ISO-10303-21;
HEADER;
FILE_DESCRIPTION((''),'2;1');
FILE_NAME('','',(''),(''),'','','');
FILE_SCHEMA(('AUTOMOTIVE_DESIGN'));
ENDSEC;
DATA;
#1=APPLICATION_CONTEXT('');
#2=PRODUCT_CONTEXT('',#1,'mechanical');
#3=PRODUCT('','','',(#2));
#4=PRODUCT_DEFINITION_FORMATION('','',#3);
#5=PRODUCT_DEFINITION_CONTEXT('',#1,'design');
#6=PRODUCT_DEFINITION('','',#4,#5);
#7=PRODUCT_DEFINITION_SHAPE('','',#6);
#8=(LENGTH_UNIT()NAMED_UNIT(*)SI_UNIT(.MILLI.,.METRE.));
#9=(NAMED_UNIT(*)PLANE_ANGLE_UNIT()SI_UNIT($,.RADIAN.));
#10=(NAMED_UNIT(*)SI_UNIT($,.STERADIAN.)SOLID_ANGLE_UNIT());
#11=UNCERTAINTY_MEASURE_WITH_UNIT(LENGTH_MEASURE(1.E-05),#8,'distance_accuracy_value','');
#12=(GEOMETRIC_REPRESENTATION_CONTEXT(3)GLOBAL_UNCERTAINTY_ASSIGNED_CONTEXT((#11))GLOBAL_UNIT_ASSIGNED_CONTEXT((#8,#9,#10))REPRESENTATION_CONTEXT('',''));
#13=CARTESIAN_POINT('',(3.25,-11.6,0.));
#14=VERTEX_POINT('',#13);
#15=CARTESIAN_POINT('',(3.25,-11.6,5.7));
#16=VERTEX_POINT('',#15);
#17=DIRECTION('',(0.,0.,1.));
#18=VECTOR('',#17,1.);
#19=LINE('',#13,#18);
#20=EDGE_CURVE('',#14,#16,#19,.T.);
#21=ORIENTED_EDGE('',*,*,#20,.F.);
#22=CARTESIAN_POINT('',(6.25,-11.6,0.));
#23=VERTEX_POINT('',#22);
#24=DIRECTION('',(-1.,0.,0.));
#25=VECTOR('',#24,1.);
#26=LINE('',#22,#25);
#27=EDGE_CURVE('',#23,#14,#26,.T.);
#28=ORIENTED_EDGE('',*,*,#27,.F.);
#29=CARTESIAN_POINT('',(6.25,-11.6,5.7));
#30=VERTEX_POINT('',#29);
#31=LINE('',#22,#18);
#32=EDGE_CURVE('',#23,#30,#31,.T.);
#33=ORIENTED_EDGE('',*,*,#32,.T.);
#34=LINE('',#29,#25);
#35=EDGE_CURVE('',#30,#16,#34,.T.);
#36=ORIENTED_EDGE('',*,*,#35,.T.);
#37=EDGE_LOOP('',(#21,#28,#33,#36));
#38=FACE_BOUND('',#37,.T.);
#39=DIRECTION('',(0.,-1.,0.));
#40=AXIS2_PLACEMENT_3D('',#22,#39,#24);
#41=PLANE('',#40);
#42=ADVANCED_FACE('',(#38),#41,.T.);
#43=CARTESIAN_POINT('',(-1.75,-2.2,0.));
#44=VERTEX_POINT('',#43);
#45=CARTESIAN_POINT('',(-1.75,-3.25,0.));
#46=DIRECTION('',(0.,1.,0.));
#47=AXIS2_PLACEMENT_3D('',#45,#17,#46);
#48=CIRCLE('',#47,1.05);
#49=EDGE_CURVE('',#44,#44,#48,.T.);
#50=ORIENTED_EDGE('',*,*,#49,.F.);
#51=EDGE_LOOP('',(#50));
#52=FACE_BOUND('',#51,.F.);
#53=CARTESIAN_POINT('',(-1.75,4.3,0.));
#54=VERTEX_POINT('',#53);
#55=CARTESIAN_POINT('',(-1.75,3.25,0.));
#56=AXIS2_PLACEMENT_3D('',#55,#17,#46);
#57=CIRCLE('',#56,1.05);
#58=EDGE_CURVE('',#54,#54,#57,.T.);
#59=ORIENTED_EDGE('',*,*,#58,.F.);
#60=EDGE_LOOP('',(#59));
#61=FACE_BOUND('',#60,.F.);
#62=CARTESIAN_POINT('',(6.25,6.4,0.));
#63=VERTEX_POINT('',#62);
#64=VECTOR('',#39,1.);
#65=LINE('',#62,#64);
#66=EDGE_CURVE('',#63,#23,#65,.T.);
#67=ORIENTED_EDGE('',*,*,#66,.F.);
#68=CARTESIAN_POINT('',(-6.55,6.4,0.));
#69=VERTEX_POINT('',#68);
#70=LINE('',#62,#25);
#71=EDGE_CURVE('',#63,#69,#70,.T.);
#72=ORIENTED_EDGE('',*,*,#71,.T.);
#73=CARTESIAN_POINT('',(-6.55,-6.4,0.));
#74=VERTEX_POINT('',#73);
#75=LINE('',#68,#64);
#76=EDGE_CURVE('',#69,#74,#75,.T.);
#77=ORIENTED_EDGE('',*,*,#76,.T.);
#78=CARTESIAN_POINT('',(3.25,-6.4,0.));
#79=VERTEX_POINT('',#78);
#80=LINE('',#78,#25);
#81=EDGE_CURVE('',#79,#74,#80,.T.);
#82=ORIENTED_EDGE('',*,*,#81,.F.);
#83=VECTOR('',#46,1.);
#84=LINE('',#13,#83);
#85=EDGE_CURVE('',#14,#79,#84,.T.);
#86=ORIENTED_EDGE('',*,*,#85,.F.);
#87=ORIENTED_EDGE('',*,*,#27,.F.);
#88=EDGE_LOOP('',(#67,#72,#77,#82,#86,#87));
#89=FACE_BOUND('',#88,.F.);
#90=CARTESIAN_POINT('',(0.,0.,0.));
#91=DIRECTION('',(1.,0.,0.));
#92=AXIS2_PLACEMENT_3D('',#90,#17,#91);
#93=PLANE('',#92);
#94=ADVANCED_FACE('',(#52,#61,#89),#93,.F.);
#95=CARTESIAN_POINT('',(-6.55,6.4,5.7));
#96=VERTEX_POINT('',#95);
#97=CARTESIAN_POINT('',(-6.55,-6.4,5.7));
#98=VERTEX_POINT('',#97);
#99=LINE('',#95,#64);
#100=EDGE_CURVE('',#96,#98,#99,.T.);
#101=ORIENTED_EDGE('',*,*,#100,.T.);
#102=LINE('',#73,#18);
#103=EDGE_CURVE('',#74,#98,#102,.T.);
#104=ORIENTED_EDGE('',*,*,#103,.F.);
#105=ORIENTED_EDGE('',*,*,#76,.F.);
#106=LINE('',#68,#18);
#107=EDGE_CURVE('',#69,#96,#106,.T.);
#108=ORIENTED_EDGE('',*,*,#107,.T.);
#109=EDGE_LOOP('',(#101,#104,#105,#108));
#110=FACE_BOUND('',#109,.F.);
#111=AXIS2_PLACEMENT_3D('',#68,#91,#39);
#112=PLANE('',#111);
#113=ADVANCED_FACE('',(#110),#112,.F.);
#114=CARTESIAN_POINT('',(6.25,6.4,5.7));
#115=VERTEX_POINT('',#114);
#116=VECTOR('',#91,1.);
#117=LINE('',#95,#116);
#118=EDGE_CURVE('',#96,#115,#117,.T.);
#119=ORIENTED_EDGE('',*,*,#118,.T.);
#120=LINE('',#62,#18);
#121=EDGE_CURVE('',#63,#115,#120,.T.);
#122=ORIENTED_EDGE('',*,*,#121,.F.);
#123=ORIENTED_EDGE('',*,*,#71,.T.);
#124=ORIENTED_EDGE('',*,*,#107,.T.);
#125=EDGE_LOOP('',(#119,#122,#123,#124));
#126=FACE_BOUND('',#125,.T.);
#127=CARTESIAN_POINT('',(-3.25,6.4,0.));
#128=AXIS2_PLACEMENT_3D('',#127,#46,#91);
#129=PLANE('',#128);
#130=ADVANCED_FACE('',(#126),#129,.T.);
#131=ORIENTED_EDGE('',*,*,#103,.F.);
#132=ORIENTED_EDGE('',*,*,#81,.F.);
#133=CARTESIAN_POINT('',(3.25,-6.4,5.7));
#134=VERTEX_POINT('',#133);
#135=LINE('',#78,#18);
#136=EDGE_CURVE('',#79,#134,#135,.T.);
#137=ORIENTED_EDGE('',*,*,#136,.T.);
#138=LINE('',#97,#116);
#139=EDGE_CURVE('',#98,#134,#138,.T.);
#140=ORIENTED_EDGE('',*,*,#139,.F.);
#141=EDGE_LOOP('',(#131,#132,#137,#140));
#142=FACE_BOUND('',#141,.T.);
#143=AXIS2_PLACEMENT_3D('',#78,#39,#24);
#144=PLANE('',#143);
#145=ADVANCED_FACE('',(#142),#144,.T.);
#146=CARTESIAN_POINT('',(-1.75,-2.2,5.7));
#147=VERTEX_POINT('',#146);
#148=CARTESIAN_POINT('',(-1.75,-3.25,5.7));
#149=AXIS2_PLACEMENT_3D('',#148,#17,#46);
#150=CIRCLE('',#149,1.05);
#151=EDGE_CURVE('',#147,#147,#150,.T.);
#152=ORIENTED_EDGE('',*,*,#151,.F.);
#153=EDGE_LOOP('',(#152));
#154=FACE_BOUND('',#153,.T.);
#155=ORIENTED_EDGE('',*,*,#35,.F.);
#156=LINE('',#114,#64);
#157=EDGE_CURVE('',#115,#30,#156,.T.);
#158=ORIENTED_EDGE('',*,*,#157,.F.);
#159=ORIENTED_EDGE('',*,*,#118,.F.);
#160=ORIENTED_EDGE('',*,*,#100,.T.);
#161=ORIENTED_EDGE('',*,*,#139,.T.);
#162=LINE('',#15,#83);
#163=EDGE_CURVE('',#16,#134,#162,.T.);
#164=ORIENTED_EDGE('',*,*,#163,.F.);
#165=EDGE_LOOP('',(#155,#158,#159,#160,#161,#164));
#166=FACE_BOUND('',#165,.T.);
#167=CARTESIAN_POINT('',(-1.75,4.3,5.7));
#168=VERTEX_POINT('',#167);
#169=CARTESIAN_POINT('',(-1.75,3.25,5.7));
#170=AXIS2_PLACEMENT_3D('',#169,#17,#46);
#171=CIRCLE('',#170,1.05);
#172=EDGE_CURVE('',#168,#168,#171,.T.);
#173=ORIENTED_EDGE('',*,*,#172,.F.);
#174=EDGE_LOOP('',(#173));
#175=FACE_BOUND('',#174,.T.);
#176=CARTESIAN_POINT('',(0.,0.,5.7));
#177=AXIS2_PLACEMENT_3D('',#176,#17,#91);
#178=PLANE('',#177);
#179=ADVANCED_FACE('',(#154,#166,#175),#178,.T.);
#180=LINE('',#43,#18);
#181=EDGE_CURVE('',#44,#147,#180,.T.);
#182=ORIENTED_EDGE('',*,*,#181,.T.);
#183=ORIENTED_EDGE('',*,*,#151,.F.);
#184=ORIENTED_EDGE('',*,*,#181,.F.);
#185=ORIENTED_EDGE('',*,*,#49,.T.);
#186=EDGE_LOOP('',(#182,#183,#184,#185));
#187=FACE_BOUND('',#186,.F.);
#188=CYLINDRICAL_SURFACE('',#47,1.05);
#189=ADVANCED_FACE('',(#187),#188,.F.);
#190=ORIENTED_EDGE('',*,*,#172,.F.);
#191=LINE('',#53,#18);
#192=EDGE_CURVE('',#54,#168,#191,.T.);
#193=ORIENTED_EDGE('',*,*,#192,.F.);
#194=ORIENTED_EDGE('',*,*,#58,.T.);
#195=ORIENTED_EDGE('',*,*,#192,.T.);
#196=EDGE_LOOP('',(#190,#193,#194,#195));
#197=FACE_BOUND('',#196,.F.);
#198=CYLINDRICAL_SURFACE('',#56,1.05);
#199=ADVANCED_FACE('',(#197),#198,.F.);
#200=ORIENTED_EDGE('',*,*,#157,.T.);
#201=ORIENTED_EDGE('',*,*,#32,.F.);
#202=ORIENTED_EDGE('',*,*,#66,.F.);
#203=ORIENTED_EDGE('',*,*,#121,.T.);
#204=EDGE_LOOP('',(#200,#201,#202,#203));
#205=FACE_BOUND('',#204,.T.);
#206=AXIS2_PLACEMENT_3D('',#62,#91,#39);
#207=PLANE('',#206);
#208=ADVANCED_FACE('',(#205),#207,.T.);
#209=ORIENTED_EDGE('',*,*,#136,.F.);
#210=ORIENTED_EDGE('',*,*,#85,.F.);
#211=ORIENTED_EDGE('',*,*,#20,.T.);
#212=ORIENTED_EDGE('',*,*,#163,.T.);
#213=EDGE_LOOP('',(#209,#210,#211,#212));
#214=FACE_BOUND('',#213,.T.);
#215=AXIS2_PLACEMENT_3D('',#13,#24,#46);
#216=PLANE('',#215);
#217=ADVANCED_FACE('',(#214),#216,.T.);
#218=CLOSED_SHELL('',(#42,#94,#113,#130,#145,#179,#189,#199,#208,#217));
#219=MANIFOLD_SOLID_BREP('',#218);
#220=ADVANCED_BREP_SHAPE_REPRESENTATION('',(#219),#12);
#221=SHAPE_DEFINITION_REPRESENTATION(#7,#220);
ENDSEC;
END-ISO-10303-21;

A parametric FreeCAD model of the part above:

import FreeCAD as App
import Part
import Sketcher

doc = App.newDocument("Part")
body = doc.addObject("PartDesign::Body", "Body")

# Sketch on XY plane
sketch1 = body.newObject("Sketcher::SketchObject", "Sketch")
sketch1.AttachmentSupport = (doc.getObject("XY_Plane"), [""])
sketch1.MapMode = "FlatFace"
sketch1.addGeometry([
    Part.LineSegment(App.Vector(-6.5, 6.4, 0), App.Vector(-6.5, -6.4, 0)),  # 0
    Part.LineSegment(App.Vector(-6.5, -6.4, 0), App.Vector(3.2, -6.4, 0)),  # 1
    Part.LineSegment(App.Vector(3.2, -6.4, 0), App.Vector(3.2, -11.6, 0)),  # 2
    Part.LineSegment(App.Vector(3.2, -11.6, 0), App.Vector(6.2, -11.6, 0)),  # 3
    Part.LineSegment(App.Vector(6.2, -11.6, 0), App.Vector(6.2, 6.4, 0)),  # 4
    Part.LineSegment(App.Vector(6.2, 6.4, 0), App.Vector(-6.5, 6.4, 0)),  # 5
], False)
sketch1.addConstraint([
    Sketcher.Constraint("Coincident", 0, 2, 1, 1),
    Sketcher.Constraint("Coincident", 1, 2, 2, 1),
    Sketcher.Constraint("Coincident", 2, 2, 3, 1),
    Sketcher.Constraint("Coincident", 3, 2, 4, 1),
    Sketcher.Constraint("Coincident", 4, 2, 5, 1),
    Sketcher.Constraint("Coincident", 5, 2, 0, 1),
    Sketcher.Constraint("Vertical", 0),
    Sketcher.Constraint("Horizontal", 1),
    Sketcher.Constraint("Vertical", 2),
    Sketcher.Constraint("Horizontal", 3),
    Sketcher.Constraint("Vertical", 4),
    Sketcher.Constraint("Horizontal", 5),
    Sketcher.Constraint("Equal", 5, 0),
    Sketcher.Constraint("DistanceY", 4, 1, 4, 2, 18.0),
    Sketcher.Constraint("DistanceX", 5, 2, 5, 1, 12.8),
    Sketcher.Constraint("DistanceX", 3, 1, 3, 2, 3.0),
    Sketcher.Constraint("DistanceY", 0, 2, -1, 1, 6.4),
    Sketcher.Constraint("DistanceX", 0, 2, -1, 1, 6.55),
])
pad1 = body.newObject("PartDesign::Pad", "Pad")
pad1.Profile = sketch1
pad1.Length = 5.7

# Sketch on XY plane
sketch2 = body.newObject("Sketcher::SketchObject", "Sketch001")
sketch2.AttachmentSupport = (doc.getObject("XY_Plane"), [""])
sketch2.MapMode = "FlatFace"
sketch2.addGeometry([
    Part.Circle(App.Vector(-1.8, -3.2, 0), App.Vector(0, 0, 1), 1.1),
    Part.Circle(App.Vector(-1.8, 3.2, 0), App.Vector(0, 0, 1), 1.1),
], False)
sketch2.addConstraint([
    Sketcher.Constraint("Equal", 0, 1),
    Sketcher.Constraint("Symmetric", 0, 3, 1, 3, -1),
    Sketcher.Constraint("Diameter", 0, 2.1),
    Sketcher.Constraint("DistanceY", 0, 3, 1, 3, 6.5),
    Sketcher.Constraint("DistanceX", 0, 3, -1, 1, 1.75),
])
doc.recompute()
hole = body.newObject("PartDesign::Hole", "Hole")
hole.Profile = sketch2
hole.ThreadType = "None"
hole.Diameter = 2.1
hole.DepthType = "ThroughAll"
hole.Reversed = True

doc.recompute()
